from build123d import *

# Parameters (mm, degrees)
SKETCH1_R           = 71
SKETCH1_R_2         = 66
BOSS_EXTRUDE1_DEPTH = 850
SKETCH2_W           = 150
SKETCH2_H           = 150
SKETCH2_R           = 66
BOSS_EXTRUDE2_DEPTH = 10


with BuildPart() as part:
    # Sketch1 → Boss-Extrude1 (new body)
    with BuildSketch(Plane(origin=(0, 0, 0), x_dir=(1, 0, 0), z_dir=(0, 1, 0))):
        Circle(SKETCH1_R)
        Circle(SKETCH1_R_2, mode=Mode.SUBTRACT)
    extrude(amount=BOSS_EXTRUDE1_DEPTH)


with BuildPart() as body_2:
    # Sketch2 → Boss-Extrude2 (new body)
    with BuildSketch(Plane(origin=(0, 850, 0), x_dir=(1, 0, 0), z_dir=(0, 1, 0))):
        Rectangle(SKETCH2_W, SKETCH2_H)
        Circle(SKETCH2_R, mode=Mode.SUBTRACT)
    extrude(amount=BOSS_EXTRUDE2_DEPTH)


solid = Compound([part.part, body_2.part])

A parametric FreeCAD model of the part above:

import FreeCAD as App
import Part
import Sketcher
from FreeCAD import Vector

doc = App.newDocument("Part")
body = doc.addObject("PartDesign::Body", "Body")

# Sketch on XZ plane
sketch1 = body.newObject("Sketcher::SketchObject", "Sketch")
sketch1.AttachmentSupport = (doc.getObject("XZ_Plane"), [""])
sketch1.MapMode = "FlatFace"
sketch1.addGeometry(Part.Circle(Vector(0, 0, 0), Vector(0, 0, 1), 71), False)
sketch1.addGeometry(Part.Circle(Vector(0, 0, 0), Vector(0, 0, 1), 66), False)
sketch1.addConstraint(Sketcher.Constraint("Coincident", 0, 3, -1, 1))
sketch1.addConstraint(Sketcher.Constraint("Coincident", 1, 3, -1, 1))
sketch1.addConstraint(Sketcher.Constraint("Diameter", 0, 142.0))
sketch1.addConstraint(Sketcher.Constraint("Diameter", 1, 132.0))
pad1 = body.newObject("PartDesign::Pad", "Pad")
pad1.Profile = sketch1
pad1.Length = 850
pad1.Reversed = True
body2 = doc.addObject("PartDesign::Body", "Body001")

# Sketch on XZ plane
sketch2 = body2.newObject("Sketcher::SketchObject", "Sketch001")
sketch2.AttachmentSupport = (doc.getObject("XZ_Plane001"), [""])
sketch2.MapMode = "FlatFace"
sketch2.AttachmentOffset = App.Placement(Vector(0, 0, -850), App.Rotation())
sketch2.addGeometry(Part.LineSegment(Vector(-75, -75, 0), Vector(-75, 75, 0)), False)
sketch2.addGeometry(Part.LineSegment(Vector(-75, 75, 0), Vector(75, 75, 0)), False)
sketch2.addGeometry(Part.LineSegment(Vector(75, 75, 0), Vector(75, -75, 0)), False)
sketch2.addGeometry(Part.LineSegment(Vector(75, -75, 0), Vector(-75, -75, 0)), False)
sketch2.addGeometry(Part.Circle(Vector(0, 0, 0), Vector(0, 0, 1), 66), False)
sketch2.addConstraint(Sketcher.Constraint("Coincident", 0, 2, 1, 1))
sketch2.addConstraint(Sketcher.Constraint("Coincident", 1, 2, 2, 1))
sketch2.addConstraint(Sketcher.Constraint("Coincident", 2, 2, 3, 1))
sketch2.addConstraint(Sketcher.Constraint("Coincident", 3, 2, 0, 1))
sketch2.addConstraint(Sketcher.Constraint("Vertical", 0))
sketch2.addConstraint(Sketcher.Constraint("Horizontal", 1))
sketch2.addConstraint(Sketcher.Constraint("Vertical", 2))
sketch2.addConstraint(Sketcher.Constraint("Horizontal", 3))
sketch2.addConstraint(Sketcher.Constraint("Coincident", 4, 3, -1, 1))
sketch2.addConstraint(Sketcher.Constraint("Symmetric", 0, 2, 2, 2, -1, 1))
sketch2.addConstraint(Sketcher.Constraint("Equal", 3, 0))
sketch2.addConstraint(Sketcher.Constraint("Diameter", 4, 132.0))
sketch2.addConstraint(Sketcher.Constraint("DistanceX", 1, 1, 1, 2, 150.0))
pad2 = body2.newObject("PartDesign::Pad", "Pad001")
pad2.Profile = sketch2
pad2.Length = 10
pad2.Reversed = True

doc.recompute()
